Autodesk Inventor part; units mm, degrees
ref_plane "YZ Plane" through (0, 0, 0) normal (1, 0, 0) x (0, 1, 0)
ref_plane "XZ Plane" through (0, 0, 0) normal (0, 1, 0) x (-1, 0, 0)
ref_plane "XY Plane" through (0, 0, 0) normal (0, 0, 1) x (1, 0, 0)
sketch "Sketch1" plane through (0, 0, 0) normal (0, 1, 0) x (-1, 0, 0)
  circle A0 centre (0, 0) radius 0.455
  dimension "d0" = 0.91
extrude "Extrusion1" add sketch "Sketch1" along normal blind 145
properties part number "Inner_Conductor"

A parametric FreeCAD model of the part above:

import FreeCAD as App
import Part
import Sketcher
from FreeCAD import Vector

doc = App.newDocument("Part")
body = doc.addObject("PartDesign::Body", "Body")

# Sketch on XZ plane
sketch1 = doc.addObject("Sketcher::SketchObject", "Sketch")
body.addObject(sketch1)
sketch1.AttachmentSupport = (doc.XZ_Plane, [""])
sketch1.MapMode = "FlatFace"
sketch1.addGeometry(Part.Circle(Vector(0, 0, 0), Vector(0, 0, 1), 0.46), False)
sketch1.addConstraint([
    Sketcher.Constraint("Coincident", 0, 3, -1, 1),
    Sketcher.Constraint("Diameter", 0, 0.91),
])
pad1 = doc.addObject("PartDesign::Pad", "Pad")
body.addObject(pad1)
pad1.Profile = sketch1
pad1.Length = 145
pad1.Reversed = True

doc.recompute()
